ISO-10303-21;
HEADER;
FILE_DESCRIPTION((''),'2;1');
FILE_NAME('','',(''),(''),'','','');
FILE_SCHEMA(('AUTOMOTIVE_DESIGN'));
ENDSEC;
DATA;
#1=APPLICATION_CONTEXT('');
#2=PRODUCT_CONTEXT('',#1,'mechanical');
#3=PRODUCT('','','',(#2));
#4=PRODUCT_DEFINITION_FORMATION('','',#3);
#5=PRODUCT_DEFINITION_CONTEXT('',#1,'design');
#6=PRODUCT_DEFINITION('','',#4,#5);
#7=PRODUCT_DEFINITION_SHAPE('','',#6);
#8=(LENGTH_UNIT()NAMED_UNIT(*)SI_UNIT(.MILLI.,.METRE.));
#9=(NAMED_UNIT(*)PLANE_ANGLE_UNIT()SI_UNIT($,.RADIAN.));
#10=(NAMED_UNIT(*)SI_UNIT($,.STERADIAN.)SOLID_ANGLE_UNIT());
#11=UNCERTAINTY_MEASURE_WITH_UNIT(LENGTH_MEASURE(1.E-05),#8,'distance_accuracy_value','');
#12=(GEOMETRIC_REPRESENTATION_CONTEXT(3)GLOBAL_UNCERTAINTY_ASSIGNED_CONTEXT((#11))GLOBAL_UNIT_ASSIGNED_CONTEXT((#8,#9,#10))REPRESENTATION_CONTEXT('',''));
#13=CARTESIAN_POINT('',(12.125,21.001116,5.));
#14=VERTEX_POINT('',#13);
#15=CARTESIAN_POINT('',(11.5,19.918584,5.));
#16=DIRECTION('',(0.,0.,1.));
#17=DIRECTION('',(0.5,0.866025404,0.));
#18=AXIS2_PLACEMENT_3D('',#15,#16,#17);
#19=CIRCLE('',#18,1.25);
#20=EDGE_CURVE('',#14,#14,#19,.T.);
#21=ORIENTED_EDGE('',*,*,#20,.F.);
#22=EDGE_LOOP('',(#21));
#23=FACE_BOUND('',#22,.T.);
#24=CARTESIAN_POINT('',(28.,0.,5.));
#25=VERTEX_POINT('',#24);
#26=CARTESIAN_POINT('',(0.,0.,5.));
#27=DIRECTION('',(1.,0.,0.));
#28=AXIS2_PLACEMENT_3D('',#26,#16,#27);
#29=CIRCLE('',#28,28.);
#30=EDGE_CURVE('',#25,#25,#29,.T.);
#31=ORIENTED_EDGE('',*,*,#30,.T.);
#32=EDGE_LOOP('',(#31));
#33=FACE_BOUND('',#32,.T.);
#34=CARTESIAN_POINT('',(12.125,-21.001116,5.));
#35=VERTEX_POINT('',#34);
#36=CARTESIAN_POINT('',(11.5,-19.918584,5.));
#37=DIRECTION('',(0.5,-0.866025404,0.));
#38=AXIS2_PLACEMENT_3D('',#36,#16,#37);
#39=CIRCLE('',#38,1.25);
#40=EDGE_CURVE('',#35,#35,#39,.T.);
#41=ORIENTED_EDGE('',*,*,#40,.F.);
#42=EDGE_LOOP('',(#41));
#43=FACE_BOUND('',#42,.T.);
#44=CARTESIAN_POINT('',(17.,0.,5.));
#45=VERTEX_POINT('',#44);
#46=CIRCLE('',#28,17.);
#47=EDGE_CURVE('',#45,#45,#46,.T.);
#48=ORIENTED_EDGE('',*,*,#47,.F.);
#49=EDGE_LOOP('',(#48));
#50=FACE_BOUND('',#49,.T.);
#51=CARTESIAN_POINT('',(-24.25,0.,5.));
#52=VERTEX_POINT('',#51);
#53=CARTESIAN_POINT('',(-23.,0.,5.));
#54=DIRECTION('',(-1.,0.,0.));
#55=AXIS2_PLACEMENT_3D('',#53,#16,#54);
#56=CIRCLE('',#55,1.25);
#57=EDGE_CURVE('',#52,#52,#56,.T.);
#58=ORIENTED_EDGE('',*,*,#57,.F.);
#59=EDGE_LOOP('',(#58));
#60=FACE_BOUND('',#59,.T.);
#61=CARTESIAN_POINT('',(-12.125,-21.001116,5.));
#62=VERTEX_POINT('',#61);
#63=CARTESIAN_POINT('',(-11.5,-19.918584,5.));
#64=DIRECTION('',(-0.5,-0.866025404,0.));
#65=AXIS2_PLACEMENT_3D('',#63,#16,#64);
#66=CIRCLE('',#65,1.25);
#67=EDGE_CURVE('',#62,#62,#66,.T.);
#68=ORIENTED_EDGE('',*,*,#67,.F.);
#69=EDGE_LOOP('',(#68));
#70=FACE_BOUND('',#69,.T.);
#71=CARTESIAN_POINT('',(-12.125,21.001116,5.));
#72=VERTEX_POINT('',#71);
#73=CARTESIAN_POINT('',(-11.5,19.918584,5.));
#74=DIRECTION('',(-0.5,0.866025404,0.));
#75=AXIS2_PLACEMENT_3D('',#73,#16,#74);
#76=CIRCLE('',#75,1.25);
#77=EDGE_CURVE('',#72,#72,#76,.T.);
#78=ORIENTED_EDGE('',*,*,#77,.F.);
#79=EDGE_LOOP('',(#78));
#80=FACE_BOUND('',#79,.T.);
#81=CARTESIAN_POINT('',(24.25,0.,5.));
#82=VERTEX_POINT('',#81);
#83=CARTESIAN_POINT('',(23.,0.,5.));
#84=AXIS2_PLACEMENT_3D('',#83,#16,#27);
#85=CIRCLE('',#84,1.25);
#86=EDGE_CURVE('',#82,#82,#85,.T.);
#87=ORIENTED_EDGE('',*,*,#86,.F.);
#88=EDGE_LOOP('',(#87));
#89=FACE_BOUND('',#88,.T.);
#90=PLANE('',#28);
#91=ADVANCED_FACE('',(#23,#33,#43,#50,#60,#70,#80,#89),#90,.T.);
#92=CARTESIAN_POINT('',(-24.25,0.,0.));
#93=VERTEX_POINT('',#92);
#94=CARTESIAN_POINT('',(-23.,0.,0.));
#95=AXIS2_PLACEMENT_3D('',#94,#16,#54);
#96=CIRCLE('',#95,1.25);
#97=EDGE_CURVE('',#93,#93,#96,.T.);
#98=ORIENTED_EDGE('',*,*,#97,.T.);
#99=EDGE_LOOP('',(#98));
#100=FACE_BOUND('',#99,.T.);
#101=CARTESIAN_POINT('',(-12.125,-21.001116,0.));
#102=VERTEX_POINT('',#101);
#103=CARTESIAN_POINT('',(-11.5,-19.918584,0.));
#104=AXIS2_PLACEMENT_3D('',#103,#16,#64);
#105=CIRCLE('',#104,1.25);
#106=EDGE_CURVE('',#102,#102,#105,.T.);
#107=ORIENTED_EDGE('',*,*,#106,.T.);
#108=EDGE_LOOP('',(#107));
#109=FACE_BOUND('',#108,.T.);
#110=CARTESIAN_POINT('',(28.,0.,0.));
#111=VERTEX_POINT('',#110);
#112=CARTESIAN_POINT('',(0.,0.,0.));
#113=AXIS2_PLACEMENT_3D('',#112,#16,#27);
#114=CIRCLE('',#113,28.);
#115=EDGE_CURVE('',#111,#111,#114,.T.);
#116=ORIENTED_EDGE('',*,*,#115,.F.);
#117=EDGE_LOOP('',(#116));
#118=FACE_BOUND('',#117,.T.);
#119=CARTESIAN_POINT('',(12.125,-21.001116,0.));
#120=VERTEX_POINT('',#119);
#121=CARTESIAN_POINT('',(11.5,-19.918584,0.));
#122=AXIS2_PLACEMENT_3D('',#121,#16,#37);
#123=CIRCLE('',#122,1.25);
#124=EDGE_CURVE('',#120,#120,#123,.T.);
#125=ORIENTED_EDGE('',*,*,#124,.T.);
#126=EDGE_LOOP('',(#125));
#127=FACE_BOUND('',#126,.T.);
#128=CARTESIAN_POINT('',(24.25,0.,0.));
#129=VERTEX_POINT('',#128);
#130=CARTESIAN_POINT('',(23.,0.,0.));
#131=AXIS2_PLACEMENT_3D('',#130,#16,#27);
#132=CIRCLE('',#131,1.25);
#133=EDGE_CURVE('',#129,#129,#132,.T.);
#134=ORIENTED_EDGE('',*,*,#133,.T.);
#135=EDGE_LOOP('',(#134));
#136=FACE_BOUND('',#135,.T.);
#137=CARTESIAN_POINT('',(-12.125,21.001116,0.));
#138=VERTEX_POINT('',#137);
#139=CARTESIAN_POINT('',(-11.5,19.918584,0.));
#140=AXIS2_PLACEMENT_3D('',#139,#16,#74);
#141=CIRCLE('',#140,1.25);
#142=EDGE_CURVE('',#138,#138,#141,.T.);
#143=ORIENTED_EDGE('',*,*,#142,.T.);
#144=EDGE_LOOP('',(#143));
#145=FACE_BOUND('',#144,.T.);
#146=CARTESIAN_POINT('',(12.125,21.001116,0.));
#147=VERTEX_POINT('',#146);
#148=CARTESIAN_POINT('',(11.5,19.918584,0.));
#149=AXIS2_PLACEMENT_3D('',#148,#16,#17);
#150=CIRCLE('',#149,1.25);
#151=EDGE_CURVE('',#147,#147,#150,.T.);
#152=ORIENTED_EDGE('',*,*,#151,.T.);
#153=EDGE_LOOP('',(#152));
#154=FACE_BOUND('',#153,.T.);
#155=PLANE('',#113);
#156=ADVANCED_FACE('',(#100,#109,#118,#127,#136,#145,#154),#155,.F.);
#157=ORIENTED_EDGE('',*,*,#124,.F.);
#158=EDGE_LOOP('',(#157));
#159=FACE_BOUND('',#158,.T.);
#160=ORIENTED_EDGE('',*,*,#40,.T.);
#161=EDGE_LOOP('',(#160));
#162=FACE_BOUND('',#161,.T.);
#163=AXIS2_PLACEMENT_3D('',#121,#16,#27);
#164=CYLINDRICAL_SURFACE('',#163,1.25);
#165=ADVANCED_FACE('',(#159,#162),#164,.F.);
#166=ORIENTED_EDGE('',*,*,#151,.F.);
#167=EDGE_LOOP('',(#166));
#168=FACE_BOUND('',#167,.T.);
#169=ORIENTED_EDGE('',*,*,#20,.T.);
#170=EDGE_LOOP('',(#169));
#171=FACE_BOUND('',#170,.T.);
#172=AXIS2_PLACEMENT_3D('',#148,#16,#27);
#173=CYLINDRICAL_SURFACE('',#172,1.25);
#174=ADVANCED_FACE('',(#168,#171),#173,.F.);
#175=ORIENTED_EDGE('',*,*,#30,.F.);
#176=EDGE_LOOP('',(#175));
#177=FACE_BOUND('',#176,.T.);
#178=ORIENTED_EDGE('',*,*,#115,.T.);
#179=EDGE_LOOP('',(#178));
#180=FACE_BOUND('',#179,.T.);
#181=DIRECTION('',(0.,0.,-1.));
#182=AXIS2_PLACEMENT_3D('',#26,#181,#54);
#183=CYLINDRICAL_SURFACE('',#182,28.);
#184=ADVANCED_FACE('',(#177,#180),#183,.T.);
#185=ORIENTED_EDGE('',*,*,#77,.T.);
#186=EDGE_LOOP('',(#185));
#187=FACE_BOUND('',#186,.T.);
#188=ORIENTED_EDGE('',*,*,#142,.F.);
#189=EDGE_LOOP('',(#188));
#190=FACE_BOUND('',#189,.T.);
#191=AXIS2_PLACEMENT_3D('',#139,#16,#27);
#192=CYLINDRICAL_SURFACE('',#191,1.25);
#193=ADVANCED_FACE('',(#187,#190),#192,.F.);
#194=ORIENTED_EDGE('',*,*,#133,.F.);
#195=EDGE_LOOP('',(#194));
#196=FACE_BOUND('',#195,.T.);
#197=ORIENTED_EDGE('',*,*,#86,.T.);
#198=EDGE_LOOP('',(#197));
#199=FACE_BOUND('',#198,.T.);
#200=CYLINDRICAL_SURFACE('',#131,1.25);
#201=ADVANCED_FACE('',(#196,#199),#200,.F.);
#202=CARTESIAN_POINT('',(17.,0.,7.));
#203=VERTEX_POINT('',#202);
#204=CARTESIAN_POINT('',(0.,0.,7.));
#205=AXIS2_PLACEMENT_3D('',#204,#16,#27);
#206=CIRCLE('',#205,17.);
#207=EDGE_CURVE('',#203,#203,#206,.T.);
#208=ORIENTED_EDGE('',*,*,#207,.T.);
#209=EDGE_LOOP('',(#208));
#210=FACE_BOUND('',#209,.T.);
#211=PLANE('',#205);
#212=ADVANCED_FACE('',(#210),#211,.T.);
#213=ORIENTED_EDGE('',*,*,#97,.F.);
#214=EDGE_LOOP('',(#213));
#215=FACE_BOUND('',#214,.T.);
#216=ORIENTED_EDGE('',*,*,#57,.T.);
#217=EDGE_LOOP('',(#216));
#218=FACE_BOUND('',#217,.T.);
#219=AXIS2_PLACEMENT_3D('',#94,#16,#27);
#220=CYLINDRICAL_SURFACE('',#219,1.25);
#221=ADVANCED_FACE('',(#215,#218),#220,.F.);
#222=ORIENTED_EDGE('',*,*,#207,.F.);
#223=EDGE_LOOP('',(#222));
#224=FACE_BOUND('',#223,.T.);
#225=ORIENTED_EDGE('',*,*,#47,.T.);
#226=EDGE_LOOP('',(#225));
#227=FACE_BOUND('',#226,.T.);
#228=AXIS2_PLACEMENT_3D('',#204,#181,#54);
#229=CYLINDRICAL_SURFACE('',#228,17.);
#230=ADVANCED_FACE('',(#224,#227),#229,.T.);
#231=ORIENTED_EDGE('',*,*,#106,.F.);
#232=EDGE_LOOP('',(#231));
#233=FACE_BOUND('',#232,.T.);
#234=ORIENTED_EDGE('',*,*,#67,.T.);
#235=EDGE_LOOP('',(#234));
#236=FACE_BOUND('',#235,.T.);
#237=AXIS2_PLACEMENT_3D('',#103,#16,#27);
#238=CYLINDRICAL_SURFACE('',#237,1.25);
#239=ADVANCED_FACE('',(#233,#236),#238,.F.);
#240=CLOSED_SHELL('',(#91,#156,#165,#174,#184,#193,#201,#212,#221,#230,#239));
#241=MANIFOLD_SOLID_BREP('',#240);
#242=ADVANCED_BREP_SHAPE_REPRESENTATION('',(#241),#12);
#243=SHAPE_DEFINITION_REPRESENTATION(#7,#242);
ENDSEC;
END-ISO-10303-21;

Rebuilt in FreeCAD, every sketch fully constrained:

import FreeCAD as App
import Part
import Sketcher

doc = App.newDocument("Part")
body = doc.addObject("PartDesign::Body", "Body")

# Sketch on XY plane
sketch1 = body.newObject("Sketcher::SketchObject", "Sketch")
sketch1.AttachmentSupport = (doc.getObject("XY_Plane"), [""])
sketch1.MapMode = "FlatFace"
sketch1.addGeometry(Part.Circle(App.Vector(0, 0, 0), App.Vector(0, 0, 1), 28), False)
sketch1.addConstraint([
    Sketcher.Constraint("Coincident", 0, 3, -1, 1),
    Sketcher.Constraint("Diameter", 0, 56.0),
])
pad1 = body.newObject("PartDesign::Pad", "Pad")
pad1.Profile = sketch1
pad1.Length = 5

# Sketch on XY plane
sketch2 = body.newObject("Sketcher::SketchObject", "Sketch001")
sketch2.AttachmentSupport = (doc.getObject("XY_Plane"), [""])
sketch2.MapMode = "FlatFace"
sketch2.AttachmentOffset = App.Placement(App.Vector(0, 0, 5), App.Rotation())
sketch2.addGeometry(Part.Circle(App.Vector(0, 0, 0), App.Vector(0, 0, 1), 17), False)
sketch2.addConstraint([
    Sketcher.Constraint("Coincident", 0, 3, -1, 1),
    Sketcher.Constraint("Diameter", 0, 34.0),
])
pad2 = body.newObject("PartDesign::Pad", "Pad001")
pad2.Profile = sketch2
pad2.Length = 2

# Sketch on XY plane
sketch3 = body.newObject("Sketcher::SketchObject", "Sketch002")
sketch3.AttachmentSupport = (doc.getObject("XY_Plane"), [""])
sketch3.MapMode = "FlatFace"
sketch3.AttachmentOffset = App.Placement(App.Vector(0, 0, 5), App.Rotation())
sketch3.addGeometry(Part.Circle(App.Vector(23, 0, 0), App.Vector(0, 0, 1), 1.2), False)
sketch3.addConstraint([
    Sketcher.Constraint("PointOnObject", 0, 3, -1),
    Sketcher.Constraint("Diameter", 0, 2.5),
    Sketcher.Constraint("DistanceX", -1, 1, 0, 3, 23.0),
])
pocket1 = body.newObject("PartDesign::Pocket", "Pocket")
pocket1.Profile = sketch3
pocket1.Length = 5
doc.recompute()

polarpattern = body.newObject("PartDesign::PolarPattern", "PolarPattern")
polarpattern.Originals = [pocket1]
polarpattern.Axis = (doc.getObject("Z_Axis"), [""])
polarpattern.Angle = 360
polarpattern.Occurrences = 6
body.Tip = polarpattern

doc.recompute()
